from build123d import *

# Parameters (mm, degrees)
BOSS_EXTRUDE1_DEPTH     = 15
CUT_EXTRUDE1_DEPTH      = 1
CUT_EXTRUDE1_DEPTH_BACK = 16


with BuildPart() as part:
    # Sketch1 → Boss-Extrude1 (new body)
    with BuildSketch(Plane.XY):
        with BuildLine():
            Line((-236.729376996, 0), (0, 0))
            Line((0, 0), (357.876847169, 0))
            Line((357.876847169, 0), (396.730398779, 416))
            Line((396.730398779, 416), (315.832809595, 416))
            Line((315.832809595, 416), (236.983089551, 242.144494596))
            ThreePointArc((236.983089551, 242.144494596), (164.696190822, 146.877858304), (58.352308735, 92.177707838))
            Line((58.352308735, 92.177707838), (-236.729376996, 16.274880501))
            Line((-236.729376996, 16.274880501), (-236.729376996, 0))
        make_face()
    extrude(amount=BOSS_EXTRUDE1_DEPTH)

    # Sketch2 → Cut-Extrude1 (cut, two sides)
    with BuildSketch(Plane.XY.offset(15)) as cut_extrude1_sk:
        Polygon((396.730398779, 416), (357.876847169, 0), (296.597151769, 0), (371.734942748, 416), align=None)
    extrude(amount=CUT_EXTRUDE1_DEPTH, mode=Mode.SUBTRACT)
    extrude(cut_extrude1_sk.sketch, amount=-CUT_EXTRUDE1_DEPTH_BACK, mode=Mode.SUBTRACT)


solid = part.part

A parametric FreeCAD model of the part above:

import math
import FreeCAD as App
import Part
import Sketcher

V = App.Vector
Q = App.Units.Quantity

doc = App.newDocument("Part")
params = doc.addObject("Spreadsheet::Sheet", "Params")
for row, (alias, value) in enumerate([
    ("sketch1_radius", "270 mm"),
    ("pad1_length", "15 mm"),
], start=1):
    params.set(f"A{row}", alias)
    params.set(f"B{row}", "=" + value)
    params.setAlias(f"B{row}", alias)

body = doc.addObject("PartDesign::Body", "Body")

# Sketch on XY plane
sketch1 = doc.addObject("Sketcher::SketchObject", "Sketch")
body.addObject(sketch1)
sketch1.AttachmentSupport = (doc.XY_Plane, [""])
sketch1.MapMode = "FlatFace"
sketch1.addGeometry(Part.LineSegment(V(-237, 0, 0), V(358, 0, 0)), False)
sketch1.addGeometry(Part.LineSegment(V(358, 0, 0), V(397, 416, 0)), False)
sketch1.addGeometry(Part.LineSegment(V(397, 416, 0), V(316, 416, 0)), False)
sketch1.addGeometry(Part.LineSegment(V(316, 416, 0), V(237, 242, 0)), False)
sketch1.addGeometry(Part.ArcOfCircle(Part.Circle(V(-9, 354, 0), V(0, 0, 1), 270), math.radians(-76), math.radians(-24)), False)
sketch1.addGeometry(Part.LineSegment(V(58, 92, 0), V(-237, 16, 0)), False)
sketch1.addGeometry(Part.LineSegment(V(-237, 16, 0), V(-237, 0, 0)), False)
sketch1.addConstraint(Sketcher.Constraint("Coincident", 0, 2, 1, 1))
sketch1.addConstraint(Sketcher.Constraint("Coincident", 1, 2, 2, 1))
sketch1.addConstraint(Sketcher.Constraint("Coincident", 2, 2, 3, 1))
sketch1.addConstraint(Sketcher.Constraint("Tangent", 3, 2, 4, 2))
sketch1.addConstraint(Sketcher.Constraint("Tangent", 4, 1, 5, 1))
sketch1.addConstraint(Sketcher.Constraint("Coincident", 5, 2, 6, 1))
sketch1.addConstraint(Sketcher.Constraint("Coincident", 6, 2, 0, 1))
sketch1.addConstraint(Sketcher.Constraint("Horizontal", 0))
sketch1.addConstraint(Sketcher.Constraint("Horizontal", 2))
sketch1.addConstraint(Sketcher.Constraint("Vertical", 6))
sketch1.addConstraint(Sketcher.Constraint("PointOnObject", 0, 2, -1))
sketch1.addConstraint(Sketcher.Constraint("Radius", 4, Q("270 mm")))
sketch1.addConstraint(Sketcher.Constraint("DistanceY", -1, 1, 1, 2, Q("416 mm")))
sketch1.addConstraint(Sketcher.Constraint("DistanceX", 2, 2, 2, 1, Q("80.897589 mm")))
sketch1.addConstraint(Sketcher.Constraint("DistanceY", 6, 2, 6, 1, Q("16.274881 mm")))
sketch1.addConstraint(Sketcher.Constraint("DistanceX", -1, 1, 1, 2, Q("396.730399 mm")))
sketch1.addConstraint(Sketcher.Constraint("DistanceX", 4, 1, 2, 2, Q("257.480501 mm")))
sketch1.addConstraint(Sketcher.Constraint("Distance", 1, Q("417.810482 mm")))
sketch1.addConstraint(Sketcher.Constraint("DistanceX", 0, 1, 0, 2, Q("594.606224 mm")))
sketch1.addConstraint(Sketcher.Constraint("DistanceX", -1, 1, 3, 2, Q("236.98309 mm")))
sketch1.setExpression("Constraints[11]", "Params.sketch1_radius")
pad1 = doc.addObject("PartDesign::Pad", "Pad")
body.addObject(pad1)
pad1.Profile = sketch1
pad1.setExpression("Length", "Params.pad1_length")

# Sketch on XY plane
sketch2 = doc.addObject("Sketcher::SketchObject", "Sketch001")
body.addObject(sketch2)
sketch2.AttachmentSupport = (doc.XY_Plane, [""])
sketch2.MapMode = "FlatFace"
sketch2.AttachmentOffset = App.Placement(V(0, 0, 15), App.Rotation())
sketch2.addGeometry(Part.LineSegment(V(358, 0, 0), V(397, 416, 0)), False)
sketch2.addGeometry(Part.LineSegment(V(397, 416, 0), V(372, 416, 0)), False)
sketch2.addGeometry(Part.LineSegment(V(372, 416, 0), V(297, 0, 0)), False)
sketch2.addGeometry(Part.LineSegment(V(297, 0, 0), V(358, 0, 0)), False)
sketch2.addConstraint(Sketcher.Constraint("Coincident", 0, 2, 1, 1))
sketch2.addConstraint(Sketcher.Constraint("Coincident", 1, 2, 2, 1))
sketch2.addConstraint(Sketcher.Constraint("Coincident", 2, 2, 3, 1))
sketch2.addConstraint(Sketcher.Constraint("Coincident", 3, 2, 0, 1))
sketch2.addConstraint(Sketcher.Constraint("Horizontal", 1))
sketch2.addConstraint(Sketcher.Constraint("Horizontal", 3))
sketch2.addConstraint(Sketcher.Constraint("PointOnObject", 2, 2, -1))
sketch2.addConstraint(Sketcher.Constraint("DistanceY", -1, 1, 0, 2, Q("416 mm")))
sketch2.addConstraint(Sketcher.Constraint("DistanceX", -1, 1, 0, 2, Q("396.730399 mm")))
sketch2.addConstraint(Sketcher.Constraint("Distance", 0, Q("417.810482 mm")))
sketch2.addConstraint(Sketcher.Constraint("DistanceX", 1, 2, 1, 1, Q("24.995456 mm")))
sketch2.addConstraint(Sketcher.Constraint("DistanceX", 3, 1, 3, 2, Q("61.279695 mm")))
pocket1 = doc.addObject("PartDesign::Pocket", "Pocket")
body.addObject(pocket1)
pocket1.Profile = sketch2
pocket1.Type = "ThroughAll"
pocket1.Midplane = True

doc.recompute()
